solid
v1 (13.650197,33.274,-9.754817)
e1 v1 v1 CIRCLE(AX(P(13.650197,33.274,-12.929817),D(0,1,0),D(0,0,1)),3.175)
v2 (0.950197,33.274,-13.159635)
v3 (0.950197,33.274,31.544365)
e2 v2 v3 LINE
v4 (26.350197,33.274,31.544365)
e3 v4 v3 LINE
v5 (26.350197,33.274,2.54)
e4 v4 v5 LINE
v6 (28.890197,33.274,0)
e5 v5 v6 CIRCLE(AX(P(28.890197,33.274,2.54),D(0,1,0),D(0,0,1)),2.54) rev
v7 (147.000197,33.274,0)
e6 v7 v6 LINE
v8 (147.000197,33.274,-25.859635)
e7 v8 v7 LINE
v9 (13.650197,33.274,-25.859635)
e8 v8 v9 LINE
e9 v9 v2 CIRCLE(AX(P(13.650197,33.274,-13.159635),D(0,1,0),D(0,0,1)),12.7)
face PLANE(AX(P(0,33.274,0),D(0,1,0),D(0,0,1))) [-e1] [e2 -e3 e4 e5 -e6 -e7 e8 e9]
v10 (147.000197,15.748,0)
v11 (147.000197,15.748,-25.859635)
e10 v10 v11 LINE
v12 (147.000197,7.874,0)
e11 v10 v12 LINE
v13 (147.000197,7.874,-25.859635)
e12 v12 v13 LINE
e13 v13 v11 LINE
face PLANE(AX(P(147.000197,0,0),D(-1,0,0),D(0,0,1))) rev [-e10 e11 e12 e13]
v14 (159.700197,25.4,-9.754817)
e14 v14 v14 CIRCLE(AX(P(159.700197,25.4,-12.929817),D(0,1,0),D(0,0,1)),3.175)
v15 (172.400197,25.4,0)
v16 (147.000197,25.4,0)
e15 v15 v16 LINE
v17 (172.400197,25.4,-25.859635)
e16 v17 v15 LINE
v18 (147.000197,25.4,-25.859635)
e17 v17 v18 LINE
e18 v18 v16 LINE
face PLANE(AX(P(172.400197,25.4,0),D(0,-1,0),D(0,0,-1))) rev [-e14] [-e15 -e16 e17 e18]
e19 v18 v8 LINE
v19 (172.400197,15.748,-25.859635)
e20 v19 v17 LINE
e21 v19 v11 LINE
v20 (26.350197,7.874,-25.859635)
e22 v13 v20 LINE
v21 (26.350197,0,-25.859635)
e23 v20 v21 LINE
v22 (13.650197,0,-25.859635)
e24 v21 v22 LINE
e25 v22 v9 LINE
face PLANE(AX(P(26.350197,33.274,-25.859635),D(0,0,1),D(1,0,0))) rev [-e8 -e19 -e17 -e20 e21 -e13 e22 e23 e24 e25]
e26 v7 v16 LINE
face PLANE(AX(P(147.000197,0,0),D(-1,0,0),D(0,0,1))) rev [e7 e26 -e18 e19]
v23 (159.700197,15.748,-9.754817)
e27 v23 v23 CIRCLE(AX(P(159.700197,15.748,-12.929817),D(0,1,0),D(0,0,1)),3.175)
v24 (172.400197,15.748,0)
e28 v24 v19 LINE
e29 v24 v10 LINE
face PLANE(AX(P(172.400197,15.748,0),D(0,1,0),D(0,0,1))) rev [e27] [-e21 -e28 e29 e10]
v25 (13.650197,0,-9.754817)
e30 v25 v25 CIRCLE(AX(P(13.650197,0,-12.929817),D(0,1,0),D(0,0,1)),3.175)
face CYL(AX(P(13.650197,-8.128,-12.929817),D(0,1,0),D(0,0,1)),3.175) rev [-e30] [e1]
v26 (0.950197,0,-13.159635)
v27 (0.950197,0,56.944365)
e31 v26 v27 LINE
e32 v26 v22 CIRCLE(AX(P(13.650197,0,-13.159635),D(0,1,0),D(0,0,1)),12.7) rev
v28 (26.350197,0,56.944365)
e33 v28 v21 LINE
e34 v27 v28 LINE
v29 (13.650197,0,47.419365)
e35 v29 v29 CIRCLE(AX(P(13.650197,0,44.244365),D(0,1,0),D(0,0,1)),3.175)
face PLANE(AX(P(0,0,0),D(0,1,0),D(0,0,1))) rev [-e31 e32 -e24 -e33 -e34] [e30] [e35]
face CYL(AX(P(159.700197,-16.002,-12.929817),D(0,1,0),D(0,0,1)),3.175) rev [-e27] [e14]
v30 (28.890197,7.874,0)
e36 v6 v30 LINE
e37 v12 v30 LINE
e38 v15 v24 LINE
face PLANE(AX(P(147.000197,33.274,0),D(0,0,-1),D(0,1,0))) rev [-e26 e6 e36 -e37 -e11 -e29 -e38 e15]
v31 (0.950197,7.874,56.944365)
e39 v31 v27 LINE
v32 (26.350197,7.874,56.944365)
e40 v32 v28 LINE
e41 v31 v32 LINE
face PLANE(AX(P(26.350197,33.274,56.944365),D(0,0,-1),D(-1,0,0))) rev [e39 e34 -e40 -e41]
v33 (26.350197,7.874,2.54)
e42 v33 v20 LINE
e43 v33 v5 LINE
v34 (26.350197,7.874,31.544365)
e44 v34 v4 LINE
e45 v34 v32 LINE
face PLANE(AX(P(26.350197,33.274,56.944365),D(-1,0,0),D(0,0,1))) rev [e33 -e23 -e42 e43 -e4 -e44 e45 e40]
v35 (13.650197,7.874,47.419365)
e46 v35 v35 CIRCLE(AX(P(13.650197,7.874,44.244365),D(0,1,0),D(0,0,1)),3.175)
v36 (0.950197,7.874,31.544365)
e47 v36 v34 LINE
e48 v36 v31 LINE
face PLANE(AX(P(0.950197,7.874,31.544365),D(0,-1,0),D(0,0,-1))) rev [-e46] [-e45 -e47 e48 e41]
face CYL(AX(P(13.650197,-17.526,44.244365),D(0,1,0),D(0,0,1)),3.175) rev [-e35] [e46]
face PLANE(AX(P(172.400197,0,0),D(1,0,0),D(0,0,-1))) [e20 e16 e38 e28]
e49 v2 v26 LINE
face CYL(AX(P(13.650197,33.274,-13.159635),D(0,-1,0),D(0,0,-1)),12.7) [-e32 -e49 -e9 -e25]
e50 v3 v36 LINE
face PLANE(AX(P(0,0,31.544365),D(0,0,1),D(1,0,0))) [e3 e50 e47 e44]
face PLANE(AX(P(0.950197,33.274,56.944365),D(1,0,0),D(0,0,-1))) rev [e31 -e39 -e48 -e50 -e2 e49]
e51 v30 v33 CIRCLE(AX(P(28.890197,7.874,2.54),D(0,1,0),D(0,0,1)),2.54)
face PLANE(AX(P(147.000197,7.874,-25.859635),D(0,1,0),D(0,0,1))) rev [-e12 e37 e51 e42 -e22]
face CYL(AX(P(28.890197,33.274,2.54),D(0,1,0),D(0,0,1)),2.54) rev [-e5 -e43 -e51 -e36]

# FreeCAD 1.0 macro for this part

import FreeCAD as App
import Part
import Sketcher
from FreeCAD import Vector
Q = App.Units.Quantity


def edges_at(feature, points):
    """Names of the edges that pass closest to the given points."""
    edges = feature.Shape.Edges
    near = lambda p: min(range(len(edges)), key=lambda i: edges[i].distToShape(Part.Vertex(*p))[0])
    return sorted({f"Edge{near(p) + 1}" for p in points})

doc = App.newDocument("Part")
body = doc.addObject("PartDesign::Body", "Body")

# Sketch on XZ plane
sketch1 = doc.addObject("Sketcher::SketchObject", "Sketch")
body.addObject(sketch1)
sketch1.AttachmentSupport = (doc.XZ_Plane, [""])
sketch1.MapMode = "FlatFace"
sketch1.addGeometry([
    Part.LineSegment(Vector(1, -26, 0), Vector(1, 57, 0)),
    Part.LineSegment(Vector(1, 57, 0), Vector(26, 57, 0)),
    Part.LineSegment(Vector(26, 57, 0), Vector(26, -26, 0)),
    Part.LineSegment(Vector(26, -26, 0), Vector(1, -26, 0)),
], False)
sketch1.addConstraint([
    Sketcher.Constraint("Coincident", 0, 2, 1, 1),
    Sketcher.Constraint("Coincident", 1, 2, 2, 1),
    Sketcher.Constraint("Coincident", 2, 2, 3, 1),
    Sketcher.Constraint("Coincident", 3, 2, 0, 1),
    Sketcher.Constraint("Vertical", 0),
    Sketcher.Constraint("Horizontal", 1),
    Sketcher.Constraint("Vertical", 2),
    Sketcher.Constraint("Horizontal", 3),
    Sketcher.Constraint("DistanceX", 1, 1, 1, 2, Q("1 in")),
    Sketcher.Constraint("DistanceY", 0, 1, 0, 2, Q("3.26 in")),
    Sketcher.Constraint("DistanceX", -1, 1, 0, 2, 0.950197),
    Sketcher.Constraint("DistanceY", -1, 1, 0, 2, 56.944365),
])
pad1 = doc.addObject("PartDesign::Pad", "Pad")
body.addObject(pad1)
pad1.Profile = sketch1
pad1.Length = Q("1.31 in")
pad1.Reversed = True

# Sketch on YZ plane
sketch2 = doc.addObject("Sketcher::SketchObject", "Sketch001")
body.addObject(sketch2)
sketch2.AttachmentSupport = (doc.YZ_Plane, [""])
sketch2.MapMode = "FlatFace"
sketch2.AttachmentOffset = App.Placement(Vector(0, 0, 26.350197), App.Rotation())
sketch2.addGeometry([
    Part.LineSegment(Vector(33, 0, 0), Vector(8, 0, 0)),
    Part.LineSegment(Vector(8, 0, 0), Vector(8, -26, 0)),
    Part.LineSegment(Vector(8, -26, 0), Vector(33, -26, 0)),
    Part.LineSegment(Vector(33, -26, 0), Vector(33, 0, 0)),
], False)
sketch2.addConstraint([
    Sketcher.Constraint("Coincident", 0, 2, 1, 1),
    Sketcher.Constraint("Coincident", 1, 2, 2, 1),
    Sketcher.Constraint("Coincident", 2, 2, 3, 1),
    Sketcher.Constraint("Coincident", 3, 2, 0, 1),
    Sketcher.Constraint("Horizontal", 0),
    Sketcher.Constraint("Vertical", 1),
    Sketcher.Constraint("Horizontal", 2),
    Sketcher.Constraint("Vertical", 3),
    Sketcher.Constraint("PointOnObject", 0, 2, -1),
    Sketcher.Constraint("DistanceX", 0, 2, 0, 1, Q("1 in")),
    Sketcher.Constraint("DistanceX", -1, 1, 0, 2, Q("0.31 in")),
    Sketcher.Constraint("DistanceY", 1, 2, 1, 1, 25.859635),
])
pad2 = doc.addObject("PartDesign::Pad", "Pad001")
body.addObject(pad2)
pad2.Profile = sketch2
pad2.Length = Q("4.75 in")

# Sketch on XY plane
sketch3 = doc.addObject("Sketcher::SketchObject", "Sketch002")
body.addObject(sketch3)
sketch3.AttachmentSupport = (doc.XY_Plane, [""])
sketch3.MapMode = "FlatFace"
sketch3.AttachmentOffset = App.Placement(Vector(0, 0, 56.944365), App.Rotation())
sketch3.addGeometry([
    Part.LineSegment(Vector(1, 33, 0), Vector(1, 8, 0)),
    Part.LineSegment(Vector(1, 8, 0), Vector(26, 8, 0)),
    Part.LineSegment(Vector(26, 8, 0), Vector(26, 33, 0)),
    Part.LineSegment(Vector(26, 33, 0), Vector(1, 33, 0)),
], False)
sketch3.addConstraint([
    Sketcher.Constraint("Coincident", 0, 2, 1, 1),
    Sketcher.Constraint("Coincident", 1, 2, 2, 1),
    Sketcher.Constraint("Coincident", 2, 2, 3, 1),
    Sketcher.Constraint("Coincident", 3, 2, 0, 1),
    Sketcher.Constraint("Vertical", 0),
    Sketcher.Constraint("Horizontal", 1),
    Sketcher.Constraint("Vertical", 2),
    Sketcher.Constraint("Horizontal", 3),
    Sketcher.Constraint("Equal", 3, 0),
    Sketcher.Constraint("DistanceX", 1, 1, 1, 2, Q("1 in")),
    Sketcher.Constraint("DistanceY", -1, 1, 0, 2, Q("0.31 in")),
    Sketcher.Constraint("DistanceX", -1, 1, 0, 2, 0.950197),
])
pocket1 = doc.addObject("PartDesign::Pocket", "Pocket")
body.addObject(pocket1)
pocket1.Profile = sketch3
pocket1.Length = Q("1 in")

# Sketch on YZ plane
sketch4 = doc.addObject("Sketcher::SketchObject", "Sketch003")
body.addObject(sketch4)
sketch4.AttachmentSupport = (doc.YZ_Plane, [""])
sketch4.MapMode = "FlatFace"
sketch4.AttachmentOffset = App.Placement(Vector(0, 0, 147.000197), App.Rotation())
sketch4.addGeometry([
    Part.LineSegment(Vector(25, 0, 0), Vector(16, 0, 0)),
    Part.LineSegment(Vector(16, 0, 0), Vector(16, -26, 0)),
    Part.LineSegment(Vector(16, -26, 0), Vector(25, -26, 0)),
    Part.LineSegment(Vector(25, -26, 0), Vector(25, 0, 0)),
], False)
sketch4.addConstraint([
    Sketcher.Constraint("Coincident", 0, 2, 1, 1),
    Sketcher.Constraint("Coincident", 1, 2, 2, 1),
    Sketcher.Constraint("Coincident", 2, 2, 3, 1),
    Sketcher.Constraint("Coincident", 3, 2, 0, 1),
    Sketcher.Constraint("Horizontal", 0),
    Sketcher.Constraint("Vertical", 1),
    Sketcher.Constraint("Horizontal", 2),
    Sketcher.Constraint("Vertical", 3),
    Sketcher.Constraint("PointOnObject", 0, 2, -1),
    Sketcher.Constraint("DistanceX", -1, 1, 2, 2, Q("1 in")),
    Sketcher.Constraint("DistanceX", 0, 2, 0, 1, Q("0.38 in")),
    Sketcher.Constraint("DistanceY", 1, 2, 1, 1, 25.859635),
])
pad3 = doc.addObject("PartDesign::Pad", "Pad002")
body.addObject(pad3)
pad3.Profile = sketch4
pad3.Length = Q("1 in")

# Sketch on XZ plane
sketch5 = doc.addObject("Sketcher::SketchObject", "Sketch004")
body.addObject(sketch5)
sketch5.AttachmentSupport = (doc.XZ_Plane, [""])
sketch5.MapMode = "FlatFace"
sketch5.AttachmentOffset = App.Placement(Vector(0, 0, -1 * 25.4), App.Rotation())
sketch5.addGeometry(Part.Circle(Vector(159.7, -12.9, 0), Vector(0, 0, 1), 3.2), False)
sketch5.addConstraint([
    Sketcher.Constraint("Diameter", 0, Q("0.25 in")),
    Sketcher.Constraint("DistanceX", -1, 1, 0, 3, 159.700197),
    Sketcher.Constraint("DistanceY", 0, 3, -1, 1, 12.929817),
])
pocket2 = doc.addObject("PartDesign::Pocket", "Pocket001")
body.addObject(pocket2)
pocket2.Profile = sketch5
pocket2.Length = Q("1.63 in")
pocket2.Reversed = True

# Sketch on XZ plane
sketch6 = doc.addObject("Sketcher::SketchObject", "Sketch005")
body.addObject(sketch6)
sketch6.AttachmentSupport = (doc.XZ_Plane, [""])
sketch6.MapMode = "FlatFace"
sketch6.AttachmentOffset = App.Placement(Vector(0, 0, -0.31 * 25.4), App.Rotation())
sketch6.addGeometry(Part.Circle(Vector(13.7, 44.2, 0), Vector(0, 0, 1), 3.2), False)
sketch6.addConstraint([
    Sketcher.Constraint("Diameter", 0, Q("0.25 in")),
    Sketcher.Constraint("DistanceX", -1, 1, 0, 3, 13.650197),
    Sketcher.Constraint("DistanceY", -1, 1, 0, 3, 44.244365),
])
pocket3 = doc.addObject("PartDesign::Pocket", "Pocket002")
body.addObject(pocket3)
pocket3.Profile = sketch6
pocket3.Length = Q("1 in")
pocket3.Reversed = True

# Sketch on XZ plane
sketch7 = doc.addObject("Sketcher::SketchObject", "Sketch006")
body.addObject(sketch7)
sketch7.AttachmentSupport = (doc.XZ_Plane, [""])
sketch7.MapMode = "FlatFace"
sketch7.AttachmentOffset = App.Placement(Vector(0, 0, -1.31 * 25.4), App.Rotation())
sketch7.addGeometry(Part.Circle(Vector(13.7, -12.9, 0), Vector(0, 0, 1), 3.2), False)
sketch7.addConstraint([
    Sketcher.Constraint("Diameter", 0, Q("0.25 in")),
    Sketcher.Constraint("DistanceX", -1, 1, 0, 3, 13.650197),
    Sketcher.Constraint("DistanceY", 0, 3, -1, 1, 12.929817),
])
pocket4 = doc.addObject("PartDesign::Pocket", "Pocket003")
body.addObject(pocket4)
pocket4.Profile = sketch7
pocket4.Length = Q("1.63 in")
pocket4.Reversed = True
doc.recompute()

fillet = doc.addObject("PartDesign::Fillet", "Fillet")
body.addObject(fillet)
fillet.Base = (pocket4, edges_at(pocket4, [(0.95, 16.637, -25.86)]))
fillet.Radius = Q("0.5 in")
doc.recompute()

fillet2 = doc.addObject("PartDesign::Fillet", "Fillet001")
body.addObject(fillet2)
fillet2.Base = (fillet, edges_at(fillet, [(26.35, 20.574, 0)]))
fillet2.Radius = Q("0.1 in")

doc.recompute()
